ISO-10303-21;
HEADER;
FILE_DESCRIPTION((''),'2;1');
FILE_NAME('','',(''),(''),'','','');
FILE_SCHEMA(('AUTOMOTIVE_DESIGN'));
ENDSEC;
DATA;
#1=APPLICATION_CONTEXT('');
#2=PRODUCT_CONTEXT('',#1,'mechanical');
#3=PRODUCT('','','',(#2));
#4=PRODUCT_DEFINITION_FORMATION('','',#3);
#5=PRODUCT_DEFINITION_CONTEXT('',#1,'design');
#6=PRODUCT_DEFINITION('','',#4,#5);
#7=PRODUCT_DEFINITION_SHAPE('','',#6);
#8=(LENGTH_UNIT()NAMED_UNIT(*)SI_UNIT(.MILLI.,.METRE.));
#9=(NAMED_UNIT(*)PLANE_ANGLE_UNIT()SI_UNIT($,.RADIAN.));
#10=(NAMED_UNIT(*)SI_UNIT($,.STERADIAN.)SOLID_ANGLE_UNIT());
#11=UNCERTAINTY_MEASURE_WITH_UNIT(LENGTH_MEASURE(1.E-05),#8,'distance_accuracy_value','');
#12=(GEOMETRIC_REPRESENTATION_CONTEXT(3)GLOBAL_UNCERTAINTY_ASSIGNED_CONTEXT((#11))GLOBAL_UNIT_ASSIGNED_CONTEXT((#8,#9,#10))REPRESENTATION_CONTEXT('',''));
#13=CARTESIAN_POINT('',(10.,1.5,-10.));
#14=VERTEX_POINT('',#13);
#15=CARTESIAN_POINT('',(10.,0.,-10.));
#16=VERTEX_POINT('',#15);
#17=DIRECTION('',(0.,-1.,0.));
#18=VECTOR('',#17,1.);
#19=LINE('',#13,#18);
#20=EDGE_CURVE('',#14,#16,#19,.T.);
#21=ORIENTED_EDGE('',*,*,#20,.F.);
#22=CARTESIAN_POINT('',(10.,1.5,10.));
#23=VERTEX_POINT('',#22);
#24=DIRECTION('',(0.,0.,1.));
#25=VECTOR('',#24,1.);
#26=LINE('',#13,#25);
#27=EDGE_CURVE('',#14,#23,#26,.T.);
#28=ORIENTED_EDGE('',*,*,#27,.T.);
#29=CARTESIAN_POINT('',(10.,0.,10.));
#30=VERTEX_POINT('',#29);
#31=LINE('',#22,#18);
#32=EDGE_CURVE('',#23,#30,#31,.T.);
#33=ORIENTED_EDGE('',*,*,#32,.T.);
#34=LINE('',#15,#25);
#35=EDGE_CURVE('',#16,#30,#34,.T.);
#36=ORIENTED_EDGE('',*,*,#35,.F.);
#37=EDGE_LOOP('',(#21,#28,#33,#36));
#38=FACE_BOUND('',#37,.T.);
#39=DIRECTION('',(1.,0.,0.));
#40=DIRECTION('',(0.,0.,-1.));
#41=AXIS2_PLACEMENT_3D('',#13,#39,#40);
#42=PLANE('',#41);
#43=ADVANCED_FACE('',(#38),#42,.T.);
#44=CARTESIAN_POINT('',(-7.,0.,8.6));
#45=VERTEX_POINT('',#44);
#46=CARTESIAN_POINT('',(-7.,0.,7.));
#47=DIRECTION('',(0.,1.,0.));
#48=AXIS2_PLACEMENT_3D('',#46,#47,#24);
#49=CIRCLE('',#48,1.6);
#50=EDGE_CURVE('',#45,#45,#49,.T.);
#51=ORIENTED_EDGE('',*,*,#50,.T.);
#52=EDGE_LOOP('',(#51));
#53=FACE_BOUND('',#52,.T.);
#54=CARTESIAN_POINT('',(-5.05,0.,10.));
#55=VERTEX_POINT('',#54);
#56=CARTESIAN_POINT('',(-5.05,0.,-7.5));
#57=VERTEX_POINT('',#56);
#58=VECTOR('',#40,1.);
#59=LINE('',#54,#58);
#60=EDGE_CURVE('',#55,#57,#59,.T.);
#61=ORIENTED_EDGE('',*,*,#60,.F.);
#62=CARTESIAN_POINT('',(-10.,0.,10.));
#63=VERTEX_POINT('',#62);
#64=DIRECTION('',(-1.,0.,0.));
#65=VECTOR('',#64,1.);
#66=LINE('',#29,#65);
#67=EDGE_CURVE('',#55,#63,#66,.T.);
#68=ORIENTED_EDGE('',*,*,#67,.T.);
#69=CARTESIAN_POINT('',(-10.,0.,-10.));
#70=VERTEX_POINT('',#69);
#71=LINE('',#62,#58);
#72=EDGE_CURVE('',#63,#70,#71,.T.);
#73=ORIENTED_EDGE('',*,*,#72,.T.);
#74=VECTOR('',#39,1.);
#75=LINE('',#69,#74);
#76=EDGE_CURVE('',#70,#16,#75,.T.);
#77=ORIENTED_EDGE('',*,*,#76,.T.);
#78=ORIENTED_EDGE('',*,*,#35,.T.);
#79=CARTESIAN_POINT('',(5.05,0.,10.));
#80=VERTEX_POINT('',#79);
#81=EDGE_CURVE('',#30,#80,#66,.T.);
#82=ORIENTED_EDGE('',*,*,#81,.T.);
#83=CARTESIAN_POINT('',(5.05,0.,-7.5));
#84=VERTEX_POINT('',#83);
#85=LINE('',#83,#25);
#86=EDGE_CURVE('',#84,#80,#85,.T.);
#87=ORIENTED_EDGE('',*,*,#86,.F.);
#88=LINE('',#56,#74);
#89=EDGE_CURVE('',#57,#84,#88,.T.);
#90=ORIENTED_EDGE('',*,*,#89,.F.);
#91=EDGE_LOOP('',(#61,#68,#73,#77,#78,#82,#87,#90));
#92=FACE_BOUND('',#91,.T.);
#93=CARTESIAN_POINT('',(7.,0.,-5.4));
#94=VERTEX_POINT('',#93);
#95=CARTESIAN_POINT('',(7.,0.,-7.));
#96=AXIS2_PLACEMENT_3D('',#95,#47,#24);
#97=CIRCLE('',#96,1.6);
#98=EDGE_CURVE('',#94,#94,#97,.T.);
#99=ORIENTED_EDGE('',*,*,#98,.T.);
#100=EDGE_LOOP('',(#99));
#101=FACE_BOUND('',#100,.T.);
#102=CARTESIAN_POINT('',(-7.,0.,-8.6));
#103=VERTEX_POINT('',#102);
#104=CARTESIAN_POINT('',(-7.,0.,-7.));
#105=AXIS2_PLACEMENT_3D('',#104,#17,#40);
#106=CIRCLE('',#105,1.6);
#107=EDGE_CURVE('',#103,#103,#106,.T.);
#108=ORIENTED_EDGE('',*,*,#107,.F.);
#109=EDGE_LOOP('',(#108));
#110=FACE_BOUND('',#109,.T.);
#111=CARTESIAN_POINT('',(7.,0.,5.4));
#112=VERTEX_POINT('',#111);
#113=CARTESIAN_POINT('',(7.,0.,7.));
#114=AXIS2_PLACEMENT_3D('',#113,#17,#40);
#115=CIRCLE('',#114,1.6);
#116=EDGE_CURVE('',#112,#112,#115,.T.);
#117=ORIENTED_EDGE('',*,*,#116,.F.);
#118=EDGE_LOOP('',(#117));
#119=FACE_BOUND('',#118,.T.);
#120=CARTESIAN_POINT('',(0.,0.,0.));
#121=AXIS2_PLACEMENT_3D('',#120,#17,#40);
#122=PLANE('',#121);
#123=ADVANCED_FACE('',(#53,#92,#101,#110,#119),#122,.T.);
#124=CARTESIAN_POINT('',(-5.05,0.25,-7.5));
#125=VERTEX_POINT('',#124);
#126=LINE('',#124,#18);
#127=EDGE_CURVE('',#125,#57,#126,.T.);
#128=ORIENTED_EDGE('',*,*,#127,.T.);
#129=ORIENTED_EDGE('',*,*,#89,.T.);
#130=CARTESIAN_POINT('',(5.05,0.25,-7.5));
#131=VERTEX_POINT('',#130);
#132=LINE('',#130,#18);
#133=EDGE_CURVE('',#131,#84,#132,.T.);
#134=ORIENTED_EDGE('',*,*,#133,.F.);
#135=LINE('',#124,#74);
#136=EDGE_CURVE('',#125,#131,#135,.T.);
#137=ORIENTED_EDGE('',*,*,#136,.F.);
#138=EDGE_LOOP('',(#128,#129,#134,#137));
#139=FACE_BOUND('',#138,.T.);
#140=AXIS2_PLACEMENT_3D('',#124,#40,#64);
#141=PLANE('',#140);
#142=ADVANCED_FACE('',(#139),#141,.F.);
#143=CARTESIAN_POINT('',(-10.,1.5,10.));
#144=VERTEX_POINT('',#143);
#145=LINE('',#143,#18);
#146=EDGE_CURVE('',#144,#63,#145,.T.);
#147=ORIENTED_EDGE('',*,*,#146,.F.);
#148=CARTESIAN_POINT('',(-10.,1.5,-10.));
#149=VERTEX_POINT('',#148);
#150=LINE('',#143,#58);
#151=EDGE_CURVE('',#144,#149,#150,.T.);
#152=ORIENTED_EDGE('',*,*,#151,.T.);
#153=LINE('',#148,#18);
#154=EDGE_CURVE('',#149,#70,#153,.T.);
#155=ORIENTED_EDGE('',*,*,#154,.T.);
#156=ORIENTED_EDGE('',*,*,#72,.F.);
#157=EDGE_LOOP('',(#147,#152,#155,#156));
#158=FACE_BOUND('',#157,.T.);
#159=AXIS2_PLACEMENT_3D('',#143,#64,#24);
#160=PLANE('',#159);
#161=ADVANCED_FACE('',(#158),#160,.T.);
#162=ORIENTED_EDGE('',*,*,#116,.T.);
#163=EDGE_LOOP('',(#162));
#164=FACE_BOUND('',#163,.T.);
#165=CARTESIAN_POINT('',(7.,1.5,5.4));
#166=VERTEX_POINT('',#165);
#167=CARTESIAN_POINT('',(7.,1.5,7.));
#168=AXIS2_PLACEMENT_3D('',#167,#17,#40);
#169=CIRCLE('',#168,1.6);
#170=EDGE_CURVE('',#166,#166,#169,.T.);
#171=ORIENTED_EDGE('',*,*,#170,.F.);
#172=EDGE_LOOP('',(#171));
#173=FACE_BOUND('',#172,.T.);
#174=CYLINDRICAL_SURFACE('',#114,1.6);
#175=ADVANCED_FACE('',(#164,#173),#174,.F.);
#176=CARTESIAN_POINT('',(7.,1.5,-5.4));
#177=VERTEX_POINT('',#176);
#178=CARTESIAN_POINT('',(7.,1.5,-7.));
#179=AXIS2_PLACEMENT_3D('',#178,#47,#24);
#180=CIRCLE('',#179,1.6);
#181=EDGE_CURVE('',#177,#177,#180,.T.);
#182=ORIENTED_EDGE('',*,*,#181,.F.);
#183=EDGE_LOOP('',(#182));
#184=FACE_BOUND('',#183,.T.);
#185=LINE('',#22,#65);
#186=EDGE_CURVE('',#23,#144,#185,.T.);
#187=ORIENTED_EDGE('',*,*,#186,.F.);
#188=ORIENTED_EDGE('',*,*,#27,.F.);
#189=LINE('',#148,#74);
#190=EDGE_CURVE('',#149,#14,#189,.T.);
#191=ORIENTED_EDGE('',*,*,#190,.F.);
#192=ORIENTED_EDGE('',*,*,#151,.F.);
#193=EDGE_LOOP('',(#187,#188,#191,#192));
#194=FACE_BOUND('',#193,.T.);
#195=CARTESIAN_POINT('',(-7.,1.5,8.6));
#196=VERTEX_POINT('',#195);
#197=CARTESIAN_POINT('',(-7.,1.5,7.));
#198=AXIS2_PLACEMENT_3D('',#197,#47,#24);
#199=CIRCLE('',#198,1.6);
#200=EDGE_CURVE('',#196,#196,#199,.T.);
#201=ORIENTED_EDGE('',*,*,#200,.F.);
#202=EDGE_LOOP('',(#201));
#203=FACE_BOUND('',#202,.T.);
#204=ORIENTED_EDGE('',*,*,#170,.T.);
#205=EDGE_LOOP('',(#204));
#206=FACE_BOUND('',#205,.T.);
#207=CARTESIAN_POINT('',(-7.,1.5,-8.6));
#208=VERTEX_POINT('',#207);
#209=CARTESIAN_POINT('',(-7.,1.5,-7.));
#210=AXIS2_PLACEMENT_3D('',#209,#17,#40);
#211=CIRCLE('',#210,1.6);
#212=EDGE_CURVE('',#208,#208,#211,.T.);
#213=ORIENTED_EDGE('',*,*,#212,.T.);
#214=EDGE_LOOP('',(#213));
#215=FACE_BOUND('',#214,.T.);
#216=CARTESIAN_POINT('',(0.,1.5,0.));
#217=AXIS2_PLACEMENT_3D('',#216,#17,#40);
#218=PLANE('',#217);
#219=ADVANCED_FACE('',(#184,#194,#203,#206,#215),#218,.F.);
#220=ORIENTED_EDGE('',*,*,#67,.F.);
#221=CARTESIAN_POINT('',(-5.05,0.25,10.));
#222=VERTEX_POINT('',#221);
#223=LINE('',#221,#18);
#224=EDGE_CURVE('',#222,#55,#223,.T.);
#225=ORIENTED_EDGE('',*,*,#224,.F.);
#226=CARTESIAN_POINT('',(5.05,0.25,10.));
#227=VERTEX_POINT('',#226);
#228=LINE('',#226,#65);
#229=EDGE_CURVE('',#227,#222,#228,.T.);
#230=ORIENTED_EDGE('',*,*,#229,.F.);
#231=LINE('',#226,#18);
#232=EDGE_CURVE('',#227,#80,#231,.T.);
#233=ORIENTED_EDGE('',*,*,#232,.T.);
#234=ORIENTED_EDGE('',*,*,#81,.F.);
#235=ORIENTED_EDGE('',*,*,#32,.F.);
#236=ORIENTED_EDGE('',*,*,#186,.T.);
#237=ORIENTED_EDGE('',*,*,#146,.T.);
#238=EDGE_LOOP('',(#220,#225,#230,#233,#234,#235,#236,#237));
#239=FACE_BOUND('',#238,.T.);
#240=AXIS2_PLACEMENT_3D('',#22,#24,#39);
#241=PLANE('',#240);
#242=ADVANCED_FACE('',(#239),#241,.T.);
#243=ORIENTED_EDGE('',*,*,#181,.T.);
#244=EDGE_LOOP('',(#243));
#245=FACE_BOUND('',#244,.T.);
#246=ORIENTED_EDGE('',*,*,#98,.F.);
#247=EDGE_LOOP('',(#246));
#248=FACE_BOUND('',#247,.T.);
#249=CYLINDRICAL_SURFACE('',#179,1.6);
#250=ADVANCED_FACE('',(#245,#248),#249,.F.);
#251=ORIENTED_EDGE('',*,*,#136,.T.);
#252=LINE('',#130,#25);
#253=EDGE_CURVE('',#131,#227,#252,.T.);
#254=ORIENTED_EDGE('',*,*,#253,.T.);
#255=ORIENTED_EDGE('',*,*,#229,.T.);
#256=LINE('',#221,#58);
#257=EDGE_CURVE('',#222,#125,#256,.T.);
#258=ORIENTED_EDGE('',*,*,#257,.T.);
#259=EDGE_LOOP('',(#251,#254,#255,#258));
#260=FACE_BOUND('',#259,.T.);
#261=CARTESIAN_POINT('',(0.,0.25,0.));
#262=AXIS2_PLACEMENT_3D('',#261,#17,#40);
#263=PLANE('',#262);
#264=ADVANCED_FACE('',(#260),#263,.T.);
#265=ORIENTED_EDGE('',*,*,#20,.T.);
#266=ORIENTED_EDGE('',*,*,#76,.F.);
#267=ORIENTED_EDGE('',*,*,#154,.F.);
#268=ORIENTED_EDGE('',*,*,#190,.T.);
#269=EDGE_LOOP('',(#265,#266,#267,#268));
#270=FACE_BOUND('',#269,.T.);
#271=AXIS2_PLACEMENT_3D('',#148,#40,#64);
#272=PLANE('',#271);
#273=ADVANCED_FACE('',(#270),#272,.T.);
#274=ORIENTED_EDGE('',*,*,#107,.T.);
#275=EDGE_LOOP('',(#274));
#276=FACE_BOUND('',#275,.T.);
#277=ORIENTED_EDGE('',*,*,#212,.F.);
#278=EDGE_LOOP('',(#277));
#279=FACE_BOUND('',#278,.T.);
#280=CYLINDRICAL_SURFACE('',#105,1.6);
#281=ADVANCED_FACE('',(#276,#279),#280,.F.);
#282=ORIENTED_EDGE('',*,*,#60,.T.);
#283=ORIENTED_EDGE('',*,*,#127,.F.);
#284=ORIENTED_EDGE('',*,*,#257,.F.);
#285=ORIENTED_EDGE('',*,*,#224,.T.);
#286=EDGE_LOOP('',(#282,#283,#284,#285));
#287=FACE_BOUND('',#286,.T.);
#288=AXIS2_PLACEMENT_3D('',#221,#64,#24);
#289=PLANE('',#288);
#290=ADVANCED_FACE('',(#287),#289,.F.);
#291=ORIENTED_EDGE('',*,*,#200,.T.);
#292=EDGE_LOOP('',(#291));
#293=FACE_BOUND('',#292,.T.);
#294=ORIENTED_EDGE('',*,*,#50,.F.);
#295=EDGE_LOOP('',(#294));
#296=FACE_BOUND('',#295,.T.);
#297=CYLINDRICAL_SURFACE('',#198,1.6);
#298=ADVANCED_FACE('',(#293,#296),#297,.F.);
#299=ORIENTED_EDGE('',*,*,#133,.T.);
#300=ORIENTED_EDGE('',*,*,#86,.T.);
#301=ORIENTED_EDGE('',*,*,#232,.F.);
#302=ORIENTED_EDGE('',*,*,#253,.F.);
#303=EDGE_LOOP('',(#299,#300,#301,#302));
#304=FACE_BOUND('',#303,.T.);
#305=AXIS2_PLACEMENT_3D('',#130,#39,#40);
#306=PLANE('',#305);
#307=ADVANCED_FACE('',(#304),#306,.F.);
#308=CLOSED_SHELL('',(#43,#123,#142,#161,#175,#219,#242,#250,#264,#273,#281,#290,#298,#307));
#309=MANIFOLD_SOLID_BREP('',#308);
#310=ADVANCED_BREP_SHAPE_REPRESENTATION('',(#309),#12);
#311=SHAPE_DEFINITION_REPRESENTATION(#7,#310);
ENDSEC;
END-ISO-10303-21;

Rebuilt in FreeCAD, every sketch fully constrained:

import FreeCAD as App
import Part
import Sketcher
from FreeCAD import Vector
Q = App.Units.Quantity


def add_polygon(sketch, points):
    """Adds a closed chain of lines whose ends are joined by coincident constraints."""
    first, n = sketch.GeometryCount, len(points)
    for a, b in zip(points, points[1:] + points[:1]):
        sketch.addGeometry(Part.LineSegment(App.Vector(*a, 0), App.Vector(*b, 0)), False)
    for i in range(n):
        sketch.addConstraint(Sketcher.Constraint("Coincident", first + i, 2, first + (i + 1) % n, 1))

doc = App.newDocument("Part")
params = doc.addObject("Spreadsheet::Sheet", "Params")
for row, (alias, value) in enumerate([
    ("sketch1_width", "20 mm"),
    ("pad1_length", "1.5 mm"),
    ("sketch2_width", "10.1 mm"),
    ("sketch2_height", "17.5 mm"),
    ("pocket1_length", "0.25 mm"),
    ("sketch3_diameter", "3.2 mm"),
    ("hole_diameter", "3.2 mm"),
    ("sketch4_diameter", "3.2 mm"),
    ("hole2_diameter", "3.2 mm"),
], start=1):
    params.set(f"A{row}", alias)
    params.set(f"B{row}", "=" + value)
    params.setAlias(f"B{row}", alias)

body = doc.addObject("PartDesign::Body", "Body")

# Sketch on XZ plane
sketch1 = body.newObject("Sketcher::SketchObject", "Sketch")
sketch1.AttachmentSupport = (doc.getObject("XZ_Plane"), [""])
sketch1.MapMode = "FlatFace"
add_polygon(sketch1, [(-10, 10), (-10, -10), (10, -10), (10, 10)])  # lines 0-3
sketch1.addConstraint([
    Sketcher.Constraint("Vertical", 0),
    Sketcher.Constraint("Horizontal", 1),
    Sketcher.Constraint("Vertical", 2),
    Sketcher.Constraint("Horizontal", 3),
    Sketcher.Constraint("Symmetric", 0, 2, 2, 2, -1, 1),
    Sketcher.Constraint("Equal", 3, 0),
    Sketcher.Constraint("DistanceX", 1, 1, 1, 2, Q("20 mm")),
])
sketch1.setExpression("Constraints[10]", "Params.sketch1_width")
pad1 = body.newObject("PartDesign::Pad", "Pad")
pad1.Profile = sketch1
pad1.setExpression("Length", "Params.pad1_length")
pad1.Reversed = True

# Sketch on XZ plane
sketch2 = body.newObject("Sketcher::SketchObject", "Sketch001")
sketch2.AttachmentSupport = (doc.getObject("XZ_Plane"), [""])
sketch2.MapMode = "FlatFace"
add_polygon(sketch2, [(-5, 10), (-5, -8), (5, -8), (5, 10)])  # lines 0-3
sketch2.addConstraint([
    Sketcher.Constraint("Vertical", 0),
    Sketcher.Constraint("Horizontal", 1),
    Sketcher.Constraint("Vertical", 2),
    Sketcher.Constraint("Horizontal", 3),
    Sketcher.Constraint("DistanceX", 1, 1, 1, 2, Q("10.1 mm")),
    Sketcher.Constraint("DistanceY", 0, 2, 0, 1, Q("17.5 mm")),
    Sketcher.Constraint("DistanceY", -1, 1, 2, 2, Q("10 mm")),
    Sketcher.Constraint("DistanceX", 0, 2, -1, 1, Q("5.05 mm")),
])
sketch2.setExpression("Constraints[8]", "Params.sketch2_width")
sketch2.setExpression("Constraints[9]", "Params.sketch2_height")
pocket1 = body.newObject("PartDesign::Pocket", "Pocket")
pocket1.Profile = sketch2
pocket1.setExpression("Length", "Params.pocket1_length")

# Sketch on XZ plane
sketch3 = body.newObject("Sketcher::SketchObject", "Sketch002")
sketch3.AttachmentSupport = (doc.getObject("XZ_Plane"), [""])
sketch3.MapMode = "FlatFace"
sketch3.AttachmentOffset = App.Placement(Vector(0, 0, -1.5), App.Rotation())
sketch3.addGeometry([
    Part.Circle(Vector(-7, 7, 0), Vector(0, 0, 1), 1.6),
    Part.Circle(Vector(7, -7, 0), Vector(0, 0, 1), 1.6),
], False)
sketch3.addConstraint([
    Sketcher.Constraint("Equal", 0, 1),
    Sketcher.Constraint("Symmetric", 0, 3, 1, 3, -1, 1),
    Sketcher.Constraint("Diameter", 0, Q("3.2 mm")),
    Sketcher.Constraint("DistanceX", 0, 3, -1, 1, Q("7 mm")),
    Sketcher.Constraint("DistanceY", -1, 1, 0, 3, Q("7 mm")),
])
sketch3.setExpression("Constraints[2]", "Params.sketch3_diameter")
doc.recompute()
hole = body.newObject("PartDesign::Hole", "Hole")
hole.Profile = sketch3
hole.ThreadType = "None"
hole.setExpression("Diameter", "Params.hole_diameter")
hole.DepthType = "ThroughAll"
hole.Reversed = True

# Sketch on XZ plane
sketch4 = body.newObject("Sketcher::SketchObject", "Sketch003")
sketch4.AttachmentSupport = (doc.getObject("XZ_Plane"), [""])
sketch4.MapMode = "FlatFace"
sketch4.addGeometry([
    Part.Circle(Vector(7, 7, 0), Vector(0, 0, 1), 1.6),
    Part.Circle(Vector(-7, -7, 0), Vector(0, 0, 1), 1.6),
], False)
sketch4.addConstraint([
    Sketcher.Constraint("Equal", 0, 1),
    Sketcher.Constraint("Symmetric", 0, 3, 1, 3, -1, 1),
    Sketcher.Constraint("Diameter", 0, Q("3.2 mm")),
    Sketcher.Constraint("DistanceX", -1, 1, 0, 3, Q("7 mm")),
    Sketcher.Constraint("DistanceY", -1, 1, 0, 3, Q("7 mm")),
])
sketch4.setExpression("Constraints[2]", "Params.sketch4_diameter")
doc.recompute()
hole2 = body.newObject("PartDesign::Hole", "Hole001")
hole2.Profile = sketch4
hole2.ThreadType = "None"
hole2.setExpression("Diameter", "Params.hole2_diameter")
hole2.DepthType = "ThroughAll"

doc.recompute()
